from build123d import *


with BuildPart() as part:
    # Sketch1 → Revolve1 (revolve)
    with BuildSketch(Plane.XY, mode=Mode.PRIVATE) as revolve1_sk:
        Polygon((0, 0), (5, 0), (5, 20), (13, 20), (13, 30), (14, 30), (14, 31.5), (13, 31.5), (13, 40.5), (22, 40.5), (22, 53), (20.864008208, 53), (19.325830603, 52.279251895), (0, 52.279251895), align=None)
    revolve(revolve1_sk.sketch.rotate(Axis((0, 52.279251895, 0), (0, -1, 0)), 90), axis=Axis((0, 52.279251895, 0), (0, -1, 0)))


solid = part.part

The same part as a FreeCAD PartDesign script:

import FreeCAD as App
import Part
import Sketcher

V = App.Vector

doc = App.newDocument("Part")
body = doc.addObject("PartDesign::Body", "Body")

# Sketch on XY plane
sketch1 = body.newObject("Sketcher::SketchObject", "Sketch")
sketch1.AttachmentSupport = (doc.getObject("XY_Plane"), [""])
sketch1.MapMode = "FlatFace"
sketch1.addGeometry(Part.LineSegment(V(0, 0, 0), V(5, 0, 0)), False)
sketch1.addGeometry(Part.LineSegment(V(5, 0, 0), V(5, 20, 0)), False)
sketch1.addGeometry(Part.LineSegment(V(5, 20, 0), V(13, 20, 0)), False)
sketch1.addGeometry(Part.LineSegment(V(13, 20, 0), V(13, 30, 0)), False)
sketch1.addGeometry(Part.LineSegment(V(13, 30, 0), V(14, 30, 0)), False)
sketch1.addGeometry(Part.LineSegment(V(14, 30, 0), V(14, 31.5, 0)), False)
sketch1.addGeometry(Part.LineSegment(V(14, 31.5, 0), V(13, 31.5, 0)), False)
sketch1.addGeometry(Part.LineSegment(V(13, 31.5, 0), V(13, 40.5, 0)), False)
sketch1.addGeometry(Part.LineSegment(V(13, 40.5, 0), V(22, 40.5, 0)), False)
sketch1.addGeometry(Part.LineSegment(V(22, 40.5, 0), V(22, 53, 0)), False)
sketch1.addGeometry(Part.LineSegment(V(22, 53, 0), V(20.864008, 53, 0)), False)
sketch1.addGeometry(Part.LineSegment(V(20.864008, 53, 0), V(19.325831, 52.279252, 0)), False)
sketch1.addGeometry(Part.LineSegment(V(19.325831, 52.279252, 0), V(0, 52.279252, 0)), False)
sketch1.addGeometry(Part.LineSegment(V(0, 52.279252, 0), V(0, 0, 0)), False)
sketch1.addConstraint(Sketcher.Constraint("Coincident", 0, 2, 1, 1))
sketch1.addConstraint(Sketcher.Constraint("Coincident", 1, 2, 2, 1))
sketch1.addConstraint(Sketcher.Constraint("Coincident", 2, 2, 3, 1))
sketch1.addConstraint(Sketcher.Constraint("Coincident", 3, 2, 4, 1))
sketch1.addConstraint(Sketcher.Constraint("Coincident", 4, 2, 5, 1))
sketch1.addConstraint(Sketcher.Constraint("Coincident", 5, 2, 6, 1))
sketch1.addConstraint(Sketcher.Constraint("Coincident", 6, 2, 7, 1))
sketch1.addConstraint(Sketcher.Constraint("Coincident", 7, 2, 8, 1))
sketch1.addConstraint(Sketcher.Constraint("Coincident", 8, 2, 9, 1))
sketch1.addConstraint(Sketcher.Constraint("Coincident", 9, 2, 10, 1))
sketch1.addConstraint(Sketcher.Constraint("Coincident", 10, 2, 11, 1))
sketch1.addConstraint(Sketcher.Constraint("Coincident", 11, 2, 12, 1))
sketch1.addConstraint(Sketcher.Constraint("Coincident", 12, 2, 13, 1))
sketch1.addConstraint(Sketcher.Constraint("Coincident", 13, 2, 0, 1))
sketch1.addConstraint(Sketcher.Constraint("Horizontal", 0))
sketch1.addConstraint(Sketcher.Constraint("Vertical", 1))
sketch1.addConstraint(Sketcher.Constraint("Horizontal", 2))
sketch1.addConstraint(Sketcher.Constraint("Vertical", 3))
sketch1.addConstraint(Sketcher.Constraint("Horizontal", 4))
sketch1.addConstraint(Sketcher.Constraint("Vertical", 5))
sketch1.addConstraint(Sketcher.Constraint("Horizontal", 6))
sketch1.addConstraint(Sketcher.Constraint("Vertical", 7))
sketch1.addConstraint(Sketcher.Constraint("Horizontal", 8))
sketch1.addConstraint(Sketcher.Constraint("Vertical", 9))
sketch1.addConstraint(Sketcher.Constraint("Horizontal", 10))
sketch1.addConstraint(Sketcher.Constraint("Horizontal", 12))
sketch1.addConstraint(Sketcher.Constraint("Vertical", 13))
sketch1.addConstraint(Sketcher.Constraint("Coincident", 13, 2, -1, 1))
sketch1.addConstraint(Sketcher.Constraint("Vertical", 3, 2, 6, 2))
sketch1.addConstraint(Sketcher.Constraint("Equal", 8, 7))
sketch1.addConstraint(Sketcher.Constraint("DistanceX", 0, 1, 0, 2, 5.0))
sketch1.addConstraint(Sketcher.Constraint("DistanceX", 2, 1, 2, 2, 8.0))
sketch1.addConstraint(Sketcher.Constraint("DistanceX", 4, 1, 4, 2, 1.0))
sketch1.addConstraint(Sketcher.Constraint("DistanceX", 8, 1, 8, 2, 9.0))
sketch1.addConstraint(Sketcher.Constraint("DistanceY", 1, 1, 1, 2, 20.0))
sketch1.addConstraint(Sketcher.Constraint("DistanceY", 3, 1, 3, 2, 10.0))
sketch1.addConstraint(Sketcher.Constraint("DistanceY", 5, 1, 5, 2, 1.5))
sketch1.addConstraint(Sketcher.Constraint("DistanceY", 9, 1, 9, 2, 12.5))
sketch1.addConstraint(Sketcher.Constraint("DistanceX", 10, 2, 10, 1, 1.135992))
sketch1.addConstraint(Sketcher.Constraint("DistanceX", 12, 2, 12, 1, 19.325831))
sketch1.addConstraint(Sketcher.Constraint("DistanceY", 13, 2, 13, 1, 52.279252))
revolution = body.newObject("PartDesign::Revolution", "Revolution")
revolution.Profile = sketch1
revolution.ReferenceAxis = (sketch1, ["V_Axis"])
revolution.Angle = 360

doc.recompute()
